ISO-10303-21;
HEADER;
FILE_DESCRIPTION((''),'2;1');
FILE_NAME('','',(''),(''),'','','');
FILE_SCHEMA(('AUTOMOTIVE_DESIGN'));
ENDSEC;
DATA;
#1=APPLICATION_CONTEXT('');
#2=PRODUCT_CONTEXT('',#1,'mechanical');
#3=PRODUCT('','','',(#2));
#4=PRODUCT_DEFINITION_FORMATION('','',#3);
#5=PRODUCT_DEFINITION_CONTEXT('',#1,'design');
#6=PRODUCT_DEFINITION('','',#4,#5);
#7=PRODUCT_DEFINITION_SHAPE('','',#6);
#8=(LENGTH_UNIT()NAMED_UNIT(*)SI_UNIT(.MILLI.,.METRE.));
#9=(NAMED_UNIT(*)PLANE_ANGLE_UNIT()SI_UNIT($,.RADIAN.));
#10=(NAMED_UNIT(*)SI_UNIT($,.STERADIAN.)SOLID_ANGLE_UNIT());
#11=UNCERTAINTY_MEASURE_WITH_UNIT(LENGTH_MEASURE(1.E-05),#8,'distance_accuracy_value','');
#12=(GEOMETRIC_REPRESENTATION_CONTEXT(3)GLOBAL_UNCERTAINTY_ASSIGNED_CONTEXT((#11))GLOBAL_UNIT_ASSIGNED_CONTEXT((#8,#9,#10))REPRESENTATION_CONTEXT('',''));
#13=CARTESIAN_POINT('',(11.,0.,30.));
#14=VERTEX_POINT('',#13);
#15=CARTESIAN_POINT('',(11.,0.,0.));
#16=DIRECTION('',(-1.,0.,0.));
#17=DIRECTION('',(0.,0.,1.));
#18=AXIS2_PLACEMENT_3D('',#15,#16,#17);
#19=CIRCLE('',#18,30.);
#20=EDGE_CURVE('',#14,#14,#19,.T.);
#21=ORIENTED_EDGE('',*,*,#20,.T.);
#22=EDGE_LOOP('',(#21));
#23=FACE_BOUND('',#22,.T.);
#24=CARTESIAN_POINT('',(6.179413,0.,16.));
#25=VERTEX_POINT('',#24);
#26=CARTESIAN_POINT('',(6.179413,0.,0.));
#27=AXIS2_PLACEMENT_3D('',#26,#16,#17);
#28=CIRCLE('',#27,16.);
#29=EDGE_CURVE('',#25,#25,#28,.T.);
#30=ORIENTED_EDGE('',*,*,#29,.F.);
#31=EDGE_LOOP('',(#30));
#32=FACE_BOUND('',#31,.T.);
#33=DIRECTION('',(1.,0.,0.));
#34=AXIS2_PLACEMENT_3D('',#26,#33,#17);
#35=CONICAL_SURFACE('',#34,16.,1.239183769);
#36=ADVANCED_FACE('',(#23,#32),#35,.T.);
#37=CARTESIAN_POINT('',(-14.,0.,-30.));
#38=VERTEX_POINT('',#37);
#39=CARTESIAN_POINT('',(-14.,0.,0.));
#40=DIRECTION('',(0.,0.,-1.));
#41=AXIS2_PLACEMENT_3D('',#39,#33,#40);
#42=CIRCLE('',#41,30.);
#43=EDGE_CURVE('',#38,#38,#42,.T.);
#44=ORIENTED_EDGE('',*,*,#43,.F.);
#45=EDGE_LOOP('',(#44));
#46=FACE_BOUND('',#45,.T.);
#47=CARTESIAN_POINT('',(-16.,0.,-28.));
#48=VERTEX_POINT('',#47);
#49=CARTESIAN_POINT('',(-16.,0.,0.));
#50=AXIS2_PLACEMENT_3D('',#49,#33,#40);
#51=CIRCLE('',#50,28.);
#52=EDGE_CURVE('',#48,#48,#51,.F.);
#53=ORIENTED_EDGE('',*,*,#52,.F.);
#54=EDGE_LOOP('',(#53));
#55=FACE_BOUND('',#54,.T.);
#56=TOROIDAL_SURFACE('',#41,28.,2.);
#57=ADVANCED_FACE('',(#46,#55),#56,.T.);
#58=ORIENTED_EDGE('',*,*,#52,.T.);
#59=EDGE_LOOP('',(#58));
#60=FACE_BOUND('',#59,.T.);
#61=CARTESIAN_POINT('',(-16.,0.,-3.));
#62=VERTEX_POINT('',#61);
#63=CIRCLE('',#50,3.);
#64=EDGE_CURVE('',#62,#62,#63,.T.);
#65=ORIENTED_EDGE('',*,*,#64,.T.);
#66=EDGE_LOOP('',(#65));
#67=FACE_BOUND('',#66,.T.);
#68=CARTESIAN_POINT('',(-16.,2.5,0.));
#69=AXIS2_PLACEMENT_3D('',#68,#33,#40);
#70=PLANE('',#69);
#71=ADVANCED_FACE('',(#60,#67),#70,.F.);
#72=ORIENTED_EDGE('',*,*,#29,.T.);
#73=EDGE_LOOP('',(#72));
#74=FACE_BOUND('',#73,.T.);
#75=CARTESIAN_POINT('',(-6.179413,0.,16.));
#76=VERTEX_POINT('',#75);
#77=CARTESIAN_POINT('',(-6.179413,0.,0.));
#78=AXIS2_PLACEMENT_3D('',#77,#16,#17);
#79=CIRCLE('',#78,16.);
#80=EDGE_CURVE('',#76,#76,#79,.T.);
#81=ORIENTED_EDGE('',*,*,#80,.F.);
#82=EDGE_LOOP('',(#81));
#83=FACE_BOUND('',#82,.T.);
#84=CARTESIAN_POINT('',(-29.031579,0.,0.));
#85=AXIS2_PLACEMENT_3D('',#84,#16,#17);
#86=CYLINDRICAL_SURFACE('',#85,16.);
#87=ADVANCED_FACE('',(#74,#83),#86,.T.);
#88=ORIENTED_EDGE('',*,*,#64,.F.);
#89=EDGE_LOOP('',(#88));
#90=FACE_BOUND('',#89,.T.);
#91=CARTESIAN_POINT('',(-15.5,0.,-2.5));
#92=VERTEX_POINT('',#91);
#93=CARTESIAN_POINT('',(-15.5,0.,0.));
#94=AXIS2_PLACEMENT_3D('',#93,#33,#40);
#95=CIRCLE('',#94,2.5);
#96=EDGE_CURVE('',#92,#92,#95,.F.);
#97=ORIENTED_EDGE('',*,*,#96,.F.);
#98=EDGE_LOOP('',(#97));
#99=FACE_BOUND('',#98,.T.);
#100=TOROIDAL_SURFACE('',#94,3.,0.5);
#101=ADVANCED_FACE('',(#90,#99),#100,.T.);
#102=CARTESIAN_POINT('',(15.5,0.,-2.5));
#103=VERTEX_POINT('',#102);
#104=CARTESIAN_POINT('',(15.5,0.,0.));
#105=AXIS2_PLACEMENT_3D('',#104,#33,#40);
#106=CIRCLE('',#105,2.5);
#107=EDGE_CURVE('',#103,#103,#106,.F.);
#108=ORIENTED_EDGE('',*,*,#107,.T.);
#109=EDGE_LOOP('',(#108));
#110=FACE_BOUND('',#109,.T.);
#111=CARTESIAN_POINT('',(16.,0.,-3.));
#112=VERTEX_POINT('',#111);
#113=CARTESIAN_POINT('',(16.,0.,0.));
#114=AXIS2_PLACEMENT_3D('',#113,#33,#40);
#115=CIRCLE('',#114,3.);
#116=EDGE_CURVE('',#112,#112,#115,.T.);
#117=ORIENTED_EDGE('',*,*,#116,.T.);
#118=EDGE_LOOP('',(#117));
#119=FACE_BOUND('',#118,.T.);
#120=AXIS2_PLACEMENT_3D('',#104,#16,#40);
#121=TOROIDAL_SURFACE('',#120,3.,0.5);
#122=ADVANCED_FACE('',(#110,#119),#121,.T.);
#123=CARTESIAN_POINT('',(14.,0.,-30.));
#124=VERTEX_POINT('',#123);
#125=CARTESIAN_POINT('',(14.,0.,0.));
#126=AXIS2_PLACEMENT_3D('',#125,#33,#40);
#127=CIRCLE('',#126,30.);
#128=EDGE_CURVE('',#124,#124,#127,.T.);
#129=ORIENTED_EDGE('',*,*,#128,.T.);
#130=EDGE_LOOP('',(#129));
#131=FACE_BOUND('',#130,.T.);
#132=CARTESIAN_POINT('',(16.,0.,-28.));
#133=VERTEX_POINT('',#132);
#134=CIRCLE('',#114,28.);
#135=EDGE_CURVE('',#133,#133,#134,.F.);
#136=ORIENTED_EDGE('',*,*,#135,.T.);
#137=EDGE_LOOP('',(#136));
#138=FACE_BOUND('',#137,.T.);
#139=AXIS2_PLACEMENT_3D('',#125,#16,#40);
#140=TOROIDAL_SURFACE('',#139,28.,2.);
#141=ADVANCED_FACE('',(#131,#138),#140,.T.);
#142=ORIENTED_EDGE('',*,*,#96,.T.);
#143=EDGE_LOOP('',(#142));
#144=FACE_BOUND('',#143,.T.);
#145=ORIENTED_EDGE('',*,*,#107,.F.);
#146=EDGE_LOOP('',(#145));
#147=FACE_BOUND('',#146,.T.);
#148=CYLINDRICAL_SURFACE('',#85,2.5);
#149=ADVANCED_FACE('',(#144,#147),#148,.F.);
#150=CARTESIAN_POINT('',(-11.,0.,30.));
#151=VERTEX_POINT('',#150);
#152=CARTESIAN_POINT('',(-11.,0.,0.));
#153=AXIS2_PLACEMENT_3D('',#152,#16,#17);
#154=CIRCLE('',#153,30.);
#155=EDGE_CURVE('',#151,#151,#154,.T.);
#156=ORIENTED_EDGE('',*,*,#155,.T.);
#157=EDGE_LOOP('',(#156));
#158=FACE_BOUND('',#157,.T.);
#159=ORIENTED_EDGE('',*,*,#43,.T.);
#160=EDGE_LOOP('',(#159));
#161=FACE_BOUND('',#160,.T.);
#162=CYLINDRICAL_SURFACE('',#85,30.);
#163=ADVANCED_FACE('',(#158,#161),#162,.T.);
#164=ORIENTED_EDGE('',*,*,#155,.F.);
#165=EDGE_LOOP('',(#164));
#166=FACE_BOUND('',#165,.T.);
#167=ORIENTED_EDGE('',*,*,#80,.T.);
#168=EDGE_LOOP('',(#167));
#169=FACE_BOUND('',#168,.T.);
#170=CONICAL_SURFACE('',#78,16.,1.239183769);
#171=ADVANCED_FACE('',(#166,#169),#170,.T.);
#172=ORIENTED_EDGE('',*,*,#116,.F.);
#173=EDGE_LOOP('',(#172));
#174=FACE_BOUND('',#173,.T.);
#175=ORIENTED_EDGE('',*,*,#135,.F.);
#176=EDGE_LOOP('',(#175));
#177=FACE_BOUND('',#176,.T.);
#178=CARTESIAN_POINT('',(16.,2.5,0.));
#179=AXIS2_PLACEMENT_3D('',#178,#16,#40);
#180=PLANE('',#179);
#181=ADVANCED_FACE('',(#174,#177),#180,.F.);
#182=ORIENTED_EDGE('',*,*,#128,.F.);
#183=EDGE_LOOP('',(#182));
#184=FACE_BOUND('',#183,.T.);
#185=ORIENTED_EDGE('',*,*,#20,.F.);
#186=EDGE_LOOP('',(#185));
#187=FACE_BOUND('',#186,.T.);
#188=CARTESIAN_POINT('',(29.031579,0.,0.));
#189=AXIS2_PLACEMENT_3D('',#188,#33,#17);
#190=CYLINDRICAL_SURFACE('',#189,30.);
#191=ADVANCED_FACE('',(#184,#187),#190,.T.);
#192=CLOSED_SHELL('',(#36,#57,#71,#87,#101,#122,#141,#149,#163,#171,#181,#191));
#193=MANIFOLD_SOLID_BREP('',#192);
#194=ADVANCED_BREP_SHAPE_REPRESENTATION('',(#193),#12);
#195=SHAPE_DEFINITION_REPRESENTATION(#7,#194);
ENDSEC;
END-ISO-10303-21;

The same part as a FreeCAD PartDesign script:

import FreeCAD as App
import Part
import Sketcher
Q = App.Units.Quantity


def edges_at(feature, points):
    """Names of the edges that pass closest to the given points."""
    edges = feature.Shape.Edges
    near = lambda p: min(range(len(edges)), key=lambda i: edges[i].distToShape(Part.Vertex(*p))[0])
    return sorted({f"Edge{near(p) + 1}" for p in points})


def add_polygon(sketch, points):
    """Adds a closed chain of lines whose ends are joined by coincident constraints."""
    first, n = sketch.GeometryCount, len(points)
    for a, b in zip(points, points[1:] + points[:1]):
        sketch.addGeometry(Part.LineSegment(App.Vector(*a, 0), App.Vector(*b, 0)), False)
    for i in range(n):
        sketch.addConstraint(Sketcher.Constraint("Coincident", first + i, 2, first + (i + 1) % n, 1))

doc = App.newDocument("Part")
body = doc.addObject("PartDesign::Body", "Body")

# Sketch on XY plane
sketch1 = doc.addObject("Sketcher::SketchObject", "Sketch")
body.addObject(sketch1)
sketch1.AttachmentSupport = (doc.XY_Plane, [""])
sketch1.MapMode = "FlatFace"
add_polygon(sketch1, [(-16, 30), (-16, 2), (0, 2), (0, 16), (-6, 16), (-11, 30)])  # lines 0-5
sketch1.addConstraint([
    Sketcher.Constraint("Vertical", 0),
    Sketcher.Constraint("Horizontal", 1),
    Sketcher.Constraint("Vertical", 2),
    Sketcher.Constraint("Horizontal", 3),
    Sketcher.Constraint("Horizontal", 5),
    Sketcher.Constraint("PointOnObject", 1, 2, -2),
    Sketcher.Constraint("DistanceX", 1, 1, 1, 2, 16.0),
    Sketcher.Constraint("DistanceX", 5, 2, 5, 1, 5.0),
    Sketcher.Constraint("Angle", 4, Q("109 deg")),
    Sketcher.Constraint("DistanceY", 0, 2, 0, 1, 27.5),
    Sketcher.Constraint("DistanceY", 2, 1, 2, 2, 13.5),
    Sketcher.Constraint("DistanceY", -1, 1, 2, 2, 16.0),
])
revolution = doc.addObject("PartDesign::Revolution", "Revolution")
body.addObject(revolution)
revolution.Profile = sketch1
revolution.ReferenceAxis = (sketch1, ["H_Axis"])
revolution.Angle = 360
doc.recompute()

fillet = doc.addObject("PartDesign::Fillet", "Fillet")
body.addObject(fillet)
fillet.Base = (revolution, edges_at(revolution, [(-16, 0, -30)]))
fillet.Radius = 2
doc.recompute()

fillet2 = doc.addObject("PartDesign::Fillet", "Fillet001")
body.addObject(fillet2)
fillet2.Base = (fillet, edges_at(fillet, [(-16, 0, -2.5)]))
fillet2.Radius = 0.5
body2 = doc.addObject("PartDesign::Body", "Body001")
doc.recompute()

body2.BaseFeature = body
doc.recompute()

mirroring = doc.addObject("Part::Mirroring", "Mirroring")
mirroring.Source = body
mirroring.Base = App.Vector(0, 0, 0)
mirroring.Normal = App.Vector(1, 0, 0)
body3 = doc.addObject("PartDesign::Body", "Body002")
body3.BaseFeature = mirroring
boolean = doc.addObject("PartDesign::Boolean", "Boolean")
body2.addObject(boolean)
boolean.Type = "Fuse"
boolean.addObjects([body3])
doc.recompute()
mirroring.Visibility = False

doc.recompute()
